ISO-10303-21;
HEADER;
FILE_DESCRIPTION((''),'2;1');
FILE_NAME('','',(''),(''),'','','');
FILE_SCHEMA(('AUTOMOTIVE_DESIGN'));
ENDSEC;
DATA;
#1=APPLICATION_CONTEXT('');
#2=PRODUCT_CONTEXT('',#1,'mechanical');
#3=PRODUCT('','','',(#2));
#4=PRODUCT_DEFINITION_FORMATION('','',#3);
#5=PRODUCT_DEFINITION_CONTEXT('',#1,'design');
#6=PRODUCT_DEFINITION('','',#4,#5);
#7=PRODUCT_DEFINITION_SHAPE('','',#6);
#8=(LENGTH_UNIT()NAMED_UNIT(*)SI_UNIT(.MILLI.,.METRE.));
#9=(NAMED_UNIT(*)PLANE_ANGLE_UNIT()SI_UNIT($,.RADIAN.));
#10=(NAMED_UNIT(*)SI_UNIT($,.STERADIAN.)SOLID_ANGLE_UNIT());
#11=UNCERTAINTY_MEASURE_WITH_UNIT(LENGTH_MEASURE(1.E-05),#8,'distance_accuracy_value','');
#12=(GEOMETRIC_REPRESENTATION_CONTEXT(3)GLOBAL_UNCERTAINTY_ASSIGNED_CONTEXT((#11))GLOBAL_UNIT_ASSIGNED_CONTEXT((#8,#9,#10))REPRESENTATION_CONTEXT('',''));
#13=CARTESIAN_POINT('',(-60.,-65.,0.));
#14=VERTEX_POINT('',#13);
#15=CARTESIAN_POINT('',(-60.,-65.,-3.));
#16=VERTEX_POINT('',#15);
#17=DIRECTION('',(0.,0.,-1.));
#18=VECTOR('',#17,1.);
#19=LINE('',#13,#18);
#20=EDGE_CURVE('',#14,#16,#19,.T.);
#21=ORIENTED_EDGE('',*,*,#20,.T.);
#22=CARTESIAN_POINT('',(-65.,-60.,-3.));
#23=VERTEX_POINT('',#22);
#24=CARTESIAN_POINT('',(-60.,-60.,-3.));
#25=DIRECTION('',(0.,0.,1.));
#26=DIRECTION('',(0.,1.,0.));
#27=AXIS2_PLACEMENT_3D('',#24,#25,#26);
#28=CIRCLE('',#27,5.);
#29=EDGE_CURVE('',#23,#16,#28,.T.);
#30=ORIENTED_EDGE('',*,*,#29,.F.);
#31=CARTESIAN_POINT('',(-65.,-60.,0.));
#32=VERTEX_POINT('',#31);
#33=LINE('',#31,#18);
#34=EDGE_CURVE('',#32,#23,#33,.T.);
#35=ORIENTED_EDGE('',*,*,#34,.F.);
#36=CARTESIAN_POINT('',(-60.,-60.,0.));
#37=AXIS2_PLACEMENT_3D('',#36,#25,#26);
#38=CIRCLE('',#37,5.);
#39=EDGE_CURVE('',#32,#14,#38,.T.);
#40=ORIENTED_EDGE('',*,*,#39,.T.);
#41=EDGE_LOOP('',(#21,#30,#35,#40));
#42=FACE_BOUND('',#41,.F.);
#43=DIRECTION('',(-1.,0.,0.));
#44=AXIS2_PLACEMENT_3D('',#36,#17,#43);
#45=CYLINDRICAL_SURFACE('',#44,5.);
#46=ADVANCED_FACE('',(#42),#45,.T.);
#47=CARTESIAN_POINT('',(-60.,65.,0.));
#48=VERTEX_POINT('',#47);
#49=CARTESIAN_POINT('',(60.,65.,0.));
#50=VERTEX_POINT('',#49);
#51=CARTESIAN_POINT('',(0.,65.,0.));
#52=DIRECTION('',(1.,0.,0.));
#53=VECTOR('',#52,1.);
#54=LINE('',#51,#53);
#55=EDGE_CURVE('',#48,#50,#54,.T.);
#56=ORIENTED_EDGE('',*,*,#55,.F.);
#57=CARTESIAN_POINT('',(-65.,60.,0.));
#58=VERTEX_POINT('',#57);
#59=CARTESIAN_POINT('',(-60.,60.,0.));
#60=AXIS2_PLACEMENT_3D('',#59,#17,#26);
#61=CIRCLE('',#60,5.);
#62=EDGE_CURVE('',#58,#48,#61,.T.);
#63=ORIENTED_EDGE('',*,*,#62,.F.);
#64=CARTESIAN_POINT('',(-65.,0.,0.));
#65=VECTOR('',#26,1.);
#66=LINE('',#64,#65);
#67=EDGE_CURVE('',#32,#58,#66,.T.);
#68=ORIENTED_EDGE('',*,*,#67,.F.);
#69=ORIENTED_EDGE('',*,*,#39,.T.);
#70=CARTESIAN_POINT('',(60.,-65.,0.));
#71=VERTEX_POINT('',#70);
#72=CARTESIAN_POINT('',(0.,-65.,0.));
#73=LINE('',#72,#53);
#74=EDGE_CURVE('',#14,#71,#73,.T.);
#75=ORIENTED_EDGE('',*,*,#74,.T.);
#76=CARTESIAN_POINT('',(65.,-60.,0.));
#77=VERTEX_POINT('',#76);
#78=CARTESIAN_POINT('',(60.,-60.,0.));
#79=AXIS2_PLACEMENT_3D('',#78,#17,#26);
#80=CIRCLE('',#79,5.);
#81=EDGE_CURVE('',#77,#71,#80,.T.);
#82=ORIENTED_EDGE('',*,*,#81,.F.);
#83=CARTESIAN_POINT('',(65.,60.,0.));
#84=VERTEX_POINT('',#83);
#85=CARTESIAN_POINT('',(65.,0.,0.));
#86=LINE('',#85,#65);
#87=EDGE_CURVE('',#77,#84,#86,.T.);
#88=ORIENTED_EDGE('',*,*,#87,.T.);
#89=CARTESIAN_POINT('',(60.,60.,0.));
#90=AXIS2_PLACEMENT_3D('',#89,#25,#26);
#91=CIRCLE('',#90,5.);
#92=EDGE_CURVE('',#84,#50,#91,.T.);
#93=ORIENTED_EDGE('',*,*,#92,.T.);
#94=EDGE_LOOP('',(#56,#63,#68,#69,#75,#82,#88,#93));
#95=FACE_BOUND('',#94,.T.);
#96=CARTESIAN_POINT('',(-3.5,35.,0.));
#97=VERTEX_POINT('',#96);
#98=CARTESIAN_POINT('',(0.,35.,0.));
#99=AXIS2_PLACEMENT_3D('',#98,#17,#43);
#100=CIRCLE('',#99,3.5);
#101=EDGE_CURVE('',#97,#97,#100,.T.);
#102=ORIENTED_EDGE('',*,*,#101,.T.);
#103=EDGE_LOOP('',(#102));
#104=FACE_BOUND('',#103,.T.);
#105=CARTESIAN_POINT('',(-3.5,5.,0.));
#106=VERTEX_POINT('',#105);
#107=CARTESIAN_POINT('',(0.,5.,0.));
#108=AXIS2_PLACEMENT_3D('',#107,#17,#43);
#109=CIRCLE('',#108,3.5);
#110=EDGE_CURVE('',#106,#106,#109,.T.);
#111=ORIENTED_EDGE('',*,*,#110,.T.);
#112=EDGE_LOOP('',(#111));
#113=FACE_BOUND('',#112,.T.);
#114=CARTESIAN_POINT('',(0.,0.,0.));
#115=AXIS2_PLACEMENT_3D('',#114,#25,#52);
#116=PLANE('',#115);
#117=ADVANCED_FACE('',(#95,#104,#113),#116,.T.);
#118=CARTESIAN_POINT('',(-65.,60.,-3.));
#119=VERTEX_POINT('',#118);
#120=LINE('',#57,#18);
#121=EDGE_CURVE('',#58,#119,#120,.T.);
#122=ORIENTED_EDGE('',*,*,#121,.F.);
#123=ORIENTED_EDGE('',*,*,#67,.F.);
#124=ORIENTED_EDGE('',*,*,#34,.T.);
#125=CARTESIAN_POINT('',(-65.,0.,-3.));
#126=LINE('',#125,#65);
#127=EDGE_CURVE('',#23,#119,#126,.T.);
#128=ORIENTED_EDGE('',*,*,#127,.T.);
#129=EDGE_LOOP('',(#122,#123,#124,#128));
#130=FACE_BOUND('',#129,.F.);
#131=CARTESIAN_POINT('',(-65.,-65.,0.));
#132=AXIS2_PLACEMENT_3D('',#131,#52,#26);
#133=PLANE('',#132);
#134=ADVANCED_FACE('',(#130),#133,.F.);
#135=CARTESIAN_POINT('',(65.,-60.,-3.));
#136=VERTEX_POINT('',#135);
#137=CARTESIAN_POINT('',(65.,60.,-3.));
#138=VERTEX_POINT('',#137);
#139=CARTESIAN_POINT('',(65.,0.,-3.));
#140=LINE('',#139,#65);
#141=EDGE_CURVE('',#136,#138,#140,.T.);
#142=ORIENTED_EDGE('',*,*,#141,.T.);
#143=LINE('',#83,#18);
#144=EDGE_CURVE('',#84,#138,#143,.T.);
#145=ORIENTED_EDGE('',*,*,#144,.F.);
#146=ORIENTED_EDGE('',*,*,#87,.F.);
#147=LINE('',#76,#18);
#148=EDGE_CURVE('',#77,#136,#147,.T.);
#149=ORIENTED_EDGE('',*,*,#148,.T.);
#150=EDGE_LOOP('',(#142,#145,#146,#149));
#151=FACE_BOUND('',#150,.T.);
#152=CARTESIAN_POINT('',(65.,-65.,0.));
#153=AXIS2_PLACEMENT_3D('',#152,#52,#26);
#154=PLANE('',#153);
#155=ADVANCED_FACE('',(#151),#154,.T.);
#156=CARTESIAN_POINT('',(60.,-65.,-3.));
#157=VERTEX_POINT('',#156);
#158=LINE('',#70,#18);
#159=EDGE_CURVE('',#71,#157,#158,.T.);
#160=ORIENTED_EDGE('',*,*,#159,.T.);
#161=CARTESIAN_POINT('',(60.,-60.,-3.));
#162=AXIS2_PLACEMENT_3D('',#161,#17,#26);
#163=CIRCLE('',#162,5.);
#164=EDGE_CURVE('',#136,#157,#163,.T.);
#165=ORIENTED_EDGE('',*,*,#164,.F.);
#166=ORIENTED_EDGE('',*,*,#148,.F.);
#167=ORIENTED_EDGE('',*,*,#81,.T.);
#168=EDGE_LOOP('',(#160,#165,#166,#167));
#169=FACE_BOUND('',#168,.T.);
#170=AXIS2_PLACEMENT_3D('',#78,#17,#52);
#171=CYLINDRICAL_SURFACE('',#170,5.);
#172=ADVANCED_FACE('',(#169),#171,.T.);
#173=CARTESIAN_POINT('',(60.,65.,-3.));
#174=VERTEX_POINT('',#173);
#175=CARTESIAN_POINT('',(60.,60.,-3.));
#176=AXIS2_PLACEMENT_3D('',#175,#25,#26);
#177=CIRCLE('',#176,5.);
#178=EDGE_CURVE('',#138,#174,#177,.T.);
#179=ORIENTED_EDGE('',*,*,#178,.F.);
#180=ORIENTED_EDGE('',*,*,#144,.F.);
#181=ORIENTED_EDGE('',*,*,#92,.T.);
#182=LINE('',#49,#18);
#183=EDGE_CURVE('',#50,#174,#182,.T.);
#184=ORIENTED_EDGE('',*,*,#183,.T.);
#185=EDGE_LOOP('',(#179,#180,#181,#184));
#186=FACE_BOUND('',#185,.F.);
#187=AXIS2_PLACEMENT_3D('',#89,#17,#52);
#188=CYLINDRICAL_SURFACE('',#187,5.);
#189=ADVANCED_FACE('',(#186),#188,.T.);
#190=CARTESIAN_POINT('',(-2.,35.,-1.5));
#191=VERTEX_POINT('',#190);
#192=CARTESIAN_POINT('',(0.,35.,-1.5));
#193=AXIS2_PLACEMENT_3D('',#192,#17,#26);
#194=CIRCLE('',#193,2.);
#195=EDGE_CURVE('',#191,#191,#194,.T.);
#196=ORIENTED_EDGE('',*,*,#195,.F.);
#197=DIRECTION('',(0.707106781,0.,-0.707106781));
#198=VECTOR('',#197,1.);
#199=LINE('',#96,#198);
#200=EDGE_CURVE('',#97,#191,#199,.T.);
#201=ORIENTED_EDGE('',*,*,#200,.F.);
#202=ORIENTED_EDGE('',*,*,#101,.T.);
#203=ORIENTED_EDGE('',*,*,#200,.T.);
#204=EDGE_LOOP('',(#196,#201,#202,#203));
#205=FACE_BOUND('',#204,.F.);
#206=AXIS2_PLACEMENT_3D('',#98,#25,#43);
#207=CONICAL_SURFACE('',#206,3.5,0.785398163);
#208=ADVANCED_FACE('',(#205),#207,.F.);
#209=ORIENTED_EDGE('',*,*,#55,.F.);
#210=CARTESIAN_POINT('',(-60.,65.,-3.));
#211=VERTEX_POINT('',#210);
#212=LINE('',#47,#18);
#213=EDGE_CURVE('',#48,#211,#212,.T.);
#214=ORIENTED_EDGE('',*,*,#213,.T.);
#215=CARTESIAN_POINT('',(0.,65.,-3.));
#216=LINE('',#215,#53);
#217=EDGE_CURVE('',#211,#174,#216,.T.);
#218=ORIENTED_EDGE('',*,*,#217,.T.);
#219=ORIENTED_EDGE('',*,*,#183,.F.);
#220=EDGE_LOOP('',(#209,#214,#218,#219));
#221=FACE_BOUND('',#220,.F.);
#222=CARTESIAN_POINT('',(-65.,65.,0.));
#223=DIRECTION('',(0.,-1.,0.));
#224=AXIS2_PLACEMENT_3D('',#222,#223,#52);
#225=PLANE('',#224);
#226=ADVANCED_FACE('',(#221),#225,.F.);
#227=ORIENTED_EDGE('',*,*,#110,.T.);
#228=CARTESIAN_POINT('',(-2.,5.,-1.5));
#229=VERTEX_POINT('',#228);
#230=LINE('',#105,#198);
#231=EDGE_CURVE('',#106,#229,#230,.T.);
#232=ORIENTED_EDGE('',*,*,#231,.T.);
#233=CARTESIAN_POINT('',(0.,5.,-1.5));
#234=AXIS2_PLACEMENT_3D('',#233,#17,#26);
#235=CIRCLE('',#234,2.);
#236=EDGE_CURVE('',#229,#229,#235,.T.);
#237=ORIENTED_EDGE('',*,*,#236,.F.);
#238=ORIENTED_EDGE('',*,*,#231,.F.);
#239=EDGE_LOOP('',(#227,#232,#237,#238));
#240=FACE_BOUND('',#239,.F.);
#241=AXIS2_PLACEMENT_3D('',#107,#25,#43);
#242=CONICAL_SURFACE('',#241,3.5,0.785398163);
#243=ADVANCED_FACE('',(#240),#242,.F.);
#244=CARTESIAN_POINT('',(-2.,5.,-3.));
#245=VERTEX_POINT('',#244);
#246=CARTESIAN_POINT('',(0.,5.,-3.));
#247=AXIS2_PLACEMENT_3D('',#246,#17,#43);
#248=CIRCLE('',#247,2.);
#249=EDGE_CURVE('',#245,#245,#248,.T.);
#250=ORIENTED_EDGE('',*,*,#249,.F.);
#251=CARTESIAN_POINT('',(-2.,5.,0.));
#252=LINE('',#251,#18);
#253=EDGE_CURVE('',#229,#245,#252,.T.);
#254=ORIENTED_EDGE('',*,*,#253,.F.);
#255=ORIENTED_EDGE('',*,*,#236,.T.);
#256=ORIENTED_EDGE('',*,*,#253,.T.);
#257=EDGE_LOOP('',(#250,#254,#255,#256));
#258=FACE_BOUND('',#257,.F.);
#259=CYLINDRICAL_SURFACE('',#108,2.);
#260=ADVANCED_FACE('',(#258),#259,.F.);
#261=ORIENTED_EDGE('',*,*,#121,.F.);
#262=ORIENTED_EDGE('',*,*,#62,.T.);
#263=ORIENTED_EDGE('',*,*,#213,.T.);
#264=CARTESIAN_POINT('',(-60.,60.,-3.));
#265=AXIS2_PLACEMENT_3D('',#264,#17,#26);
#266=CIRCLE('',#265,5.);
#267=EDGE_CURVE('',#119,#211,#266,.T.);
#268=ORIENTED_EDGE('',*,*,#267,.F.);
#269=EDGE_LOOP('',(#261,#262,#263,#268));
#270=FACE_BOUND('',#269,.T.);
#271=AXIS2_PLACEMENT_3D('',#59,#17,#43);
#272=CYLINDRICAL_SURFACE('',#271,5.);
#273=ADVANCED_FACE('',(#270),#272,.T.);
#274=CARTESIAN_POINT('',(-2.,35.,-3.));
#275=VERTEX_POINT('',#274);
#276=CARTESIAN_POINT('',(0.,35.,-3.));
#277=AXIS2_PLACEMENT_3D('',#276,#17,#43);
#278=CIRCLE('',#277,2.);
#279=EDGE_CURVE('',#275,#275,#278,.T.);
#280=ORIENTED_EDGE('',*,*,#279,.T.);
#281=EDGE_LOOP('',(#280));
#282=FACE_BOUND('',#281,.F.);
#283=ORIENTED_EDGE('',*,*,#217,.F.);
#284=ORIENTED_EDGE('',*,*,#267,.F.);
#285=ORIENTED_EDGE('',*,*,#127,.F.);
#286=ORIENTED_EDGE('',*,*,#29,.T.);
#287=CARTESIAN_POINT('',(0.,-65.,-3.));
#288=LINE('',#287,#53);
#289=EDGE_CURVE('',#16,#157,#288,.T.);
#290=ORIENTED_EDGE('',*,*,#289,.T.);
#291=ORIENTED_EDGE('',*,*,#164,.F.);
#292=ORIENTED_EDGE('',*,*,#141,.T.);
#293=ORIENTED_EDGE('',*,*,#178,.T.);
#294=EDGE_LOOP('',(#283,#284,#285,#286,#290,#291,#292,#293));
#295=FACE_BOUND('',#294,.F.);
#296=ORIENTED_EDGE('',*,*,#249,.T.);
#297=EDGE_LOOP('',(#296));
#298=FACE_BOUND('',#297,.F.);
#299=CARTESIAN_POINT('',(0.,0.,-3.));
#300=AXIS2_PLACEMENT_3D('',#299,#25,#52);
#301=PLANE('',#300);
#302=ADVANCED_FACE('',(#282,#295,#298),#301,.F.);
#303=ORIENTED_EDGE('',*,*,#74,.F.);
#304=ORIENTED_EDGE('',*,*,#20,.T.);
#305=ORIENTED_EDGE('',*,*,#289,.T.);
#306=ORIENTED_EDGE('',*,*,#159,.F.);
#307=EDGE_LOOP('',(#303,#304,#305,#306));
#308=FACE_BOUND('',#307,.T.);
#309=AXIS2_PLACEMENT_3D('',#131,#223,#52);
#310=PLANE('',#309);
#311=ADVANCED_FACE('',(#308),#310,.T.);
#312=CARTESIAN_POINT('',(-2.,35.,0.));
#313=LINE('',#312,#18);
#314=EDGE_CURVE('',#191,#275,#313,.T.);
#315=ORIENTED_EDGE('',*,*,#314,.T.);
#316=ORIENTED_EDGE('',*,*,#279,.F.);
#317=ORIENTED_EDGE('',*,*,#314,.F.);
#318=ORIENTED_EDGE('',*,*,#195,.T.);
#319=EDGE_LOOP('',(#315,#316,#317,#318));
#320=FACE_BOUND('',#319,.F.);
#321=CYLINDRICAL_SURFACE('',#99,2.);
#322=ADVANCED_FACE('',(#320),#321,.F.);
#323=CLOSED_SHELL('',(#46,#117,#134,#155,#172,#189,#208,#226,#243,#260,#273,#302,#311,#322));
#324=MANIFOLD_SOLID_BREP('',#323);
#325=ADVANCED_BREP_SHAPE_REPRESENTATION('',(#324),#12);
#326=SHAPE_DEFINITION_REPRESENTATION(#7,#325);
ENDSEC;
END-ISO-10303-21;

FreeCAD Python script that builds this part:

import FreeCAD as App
import Part
import Sketcher
from FreeCAD import Vector


def edges_at(feature, points):
    """Names of the edges that pass closest to the given points."""
    edges = feature.Shape.Edges
    near = lambda p: min(range(len(edges)), key=lambda i: edges[i].distToShape(Part.Vertex(*p))[0])
    return sorted({f"Edge{near(p) + 1}" for p in points})

doc = App.newDocument("Part")
body = doc.addObject("PartDesign::Body", "Body")

sketch1 = body.newObject("Sketcher::SketchObject", "Sketch")
sketch1.AttachmentSupport = (doc.getObject("XY_Plane"), [""])
sketch1.MapMode = "FlatFace"
sketch1.addGeometry(Part.LineSegment(Vector(-65, 65, 0), Vector(-65, -65, 0)), False)
sketch1.addGeometry(Part.LineSegment(Vector(-65, -65, 0), Vector(65, -65, 0)), False)
sketch1.addGeometry(Part.LineSegment(Vector(65, -65, 0), Vector(65, 65, 0)), False)
sketch1.addGeometry(Part.LineSegment(Vector(65, 65, 0), Vector(-65, 65, 0)), False)
sketch1.addConstraint(Sketcher.Constraint("Coincident", 0, 2, 1, 1))
sketch1.addConstraint(Sketcher.Constraint("Coincident", 1, 2, 2, 1))
sketch1.addConstraint(Sketcher.Constraint("Coincident", 2, 2, 3, 1))
sketch1.addConstraint(Sketcher.Constraint("Coincident", 3, 2, 0, 1))
sketch1.addConstraint(Sketcher.Constraint("Vertical", 0))
sketch1.addConstraint(Sketcher.Constraint("Horizontal", 1))
sketch1.addConstraint(Sketcher.Constraint("Vertical", 2))
sketch1.addConstraint(Sketcher.Constraint("Horizontal", 3))
sketch1.addConstraint(Sketcher.Constraint("Symmetric", 0, 2, 2, 2, -1, 1))
sketch1.addConstraint(Sketcher.Constraint("Equal", 3, 0))
sketch1.addConstraint(Sketcher.Constraint("DistanceX", 1, 1, 1, 2, 130.0))
pad1 = body.newObject("PartDesign::Pad", "Pad")
pad1.Profile = sketch1
pad1.Length = 3
pad1.Reversed = True

sketch2 = body.newObject("Sketcher::SketchObject", "Sketch001")
sketch2.AttachmentSupport = (doc.getObject("XY_Plane"), [""])
sketch2.MapMode = "FlatFace"
sketch2.addGeometry(Part.Circle(Vector(0, 35, 0), Vector(0, 0, 1), 2), False)
sketch2.addGeometry(Part.Circle(Vector(0, 5, 0), Vector(0, 0, 1), 2), False)
sketch2.addConstraint(Sketcher.Constraint("Equal", 0, 1))
sketch2.addConstraint(Sketcher.Constraint("PointOnObject", 0, 3, -2))
sketch2.addConstraint(Sketcher.Constraint("PointOnObject", 1, 3, -2))
sketch2.addConstraint(Sketcher.Constraint("Diameter", 0, 4.0))
sketch2.addConstraint(Sketcher.Constraint("DistanceY", -1, 1, 0, 3, 35.0))
sketch2.addConstraint(Sketcher.Constraint("DistanceY", -1, 1, 1, 3, 5.0))
doc.recompute()
hole = body.newObject("PartDesign::Hole", "Hole")
hole.Profile = sketch2
hole.ThreadType = "None"
hole.Diameter = 4
hole.DepthType = "ThroughAll"
hole.HoleCutType = "Countersink"
hole.HoleCutDiameter = 7
hole.HoleCutCountersinkAngle = 90
doc.recompute()

fillet = body.newObject("PartDesign::Fillet", "Fillet")
fillet.Base = (hole, edges_at(hole, [
    (-65, 65, -1.5),
    (65, 65, -1.5),
    (65, -65, -1.5),
    (-65, -65, -1.5),
]))
fillet.Radius = 5

doc.recompute()
